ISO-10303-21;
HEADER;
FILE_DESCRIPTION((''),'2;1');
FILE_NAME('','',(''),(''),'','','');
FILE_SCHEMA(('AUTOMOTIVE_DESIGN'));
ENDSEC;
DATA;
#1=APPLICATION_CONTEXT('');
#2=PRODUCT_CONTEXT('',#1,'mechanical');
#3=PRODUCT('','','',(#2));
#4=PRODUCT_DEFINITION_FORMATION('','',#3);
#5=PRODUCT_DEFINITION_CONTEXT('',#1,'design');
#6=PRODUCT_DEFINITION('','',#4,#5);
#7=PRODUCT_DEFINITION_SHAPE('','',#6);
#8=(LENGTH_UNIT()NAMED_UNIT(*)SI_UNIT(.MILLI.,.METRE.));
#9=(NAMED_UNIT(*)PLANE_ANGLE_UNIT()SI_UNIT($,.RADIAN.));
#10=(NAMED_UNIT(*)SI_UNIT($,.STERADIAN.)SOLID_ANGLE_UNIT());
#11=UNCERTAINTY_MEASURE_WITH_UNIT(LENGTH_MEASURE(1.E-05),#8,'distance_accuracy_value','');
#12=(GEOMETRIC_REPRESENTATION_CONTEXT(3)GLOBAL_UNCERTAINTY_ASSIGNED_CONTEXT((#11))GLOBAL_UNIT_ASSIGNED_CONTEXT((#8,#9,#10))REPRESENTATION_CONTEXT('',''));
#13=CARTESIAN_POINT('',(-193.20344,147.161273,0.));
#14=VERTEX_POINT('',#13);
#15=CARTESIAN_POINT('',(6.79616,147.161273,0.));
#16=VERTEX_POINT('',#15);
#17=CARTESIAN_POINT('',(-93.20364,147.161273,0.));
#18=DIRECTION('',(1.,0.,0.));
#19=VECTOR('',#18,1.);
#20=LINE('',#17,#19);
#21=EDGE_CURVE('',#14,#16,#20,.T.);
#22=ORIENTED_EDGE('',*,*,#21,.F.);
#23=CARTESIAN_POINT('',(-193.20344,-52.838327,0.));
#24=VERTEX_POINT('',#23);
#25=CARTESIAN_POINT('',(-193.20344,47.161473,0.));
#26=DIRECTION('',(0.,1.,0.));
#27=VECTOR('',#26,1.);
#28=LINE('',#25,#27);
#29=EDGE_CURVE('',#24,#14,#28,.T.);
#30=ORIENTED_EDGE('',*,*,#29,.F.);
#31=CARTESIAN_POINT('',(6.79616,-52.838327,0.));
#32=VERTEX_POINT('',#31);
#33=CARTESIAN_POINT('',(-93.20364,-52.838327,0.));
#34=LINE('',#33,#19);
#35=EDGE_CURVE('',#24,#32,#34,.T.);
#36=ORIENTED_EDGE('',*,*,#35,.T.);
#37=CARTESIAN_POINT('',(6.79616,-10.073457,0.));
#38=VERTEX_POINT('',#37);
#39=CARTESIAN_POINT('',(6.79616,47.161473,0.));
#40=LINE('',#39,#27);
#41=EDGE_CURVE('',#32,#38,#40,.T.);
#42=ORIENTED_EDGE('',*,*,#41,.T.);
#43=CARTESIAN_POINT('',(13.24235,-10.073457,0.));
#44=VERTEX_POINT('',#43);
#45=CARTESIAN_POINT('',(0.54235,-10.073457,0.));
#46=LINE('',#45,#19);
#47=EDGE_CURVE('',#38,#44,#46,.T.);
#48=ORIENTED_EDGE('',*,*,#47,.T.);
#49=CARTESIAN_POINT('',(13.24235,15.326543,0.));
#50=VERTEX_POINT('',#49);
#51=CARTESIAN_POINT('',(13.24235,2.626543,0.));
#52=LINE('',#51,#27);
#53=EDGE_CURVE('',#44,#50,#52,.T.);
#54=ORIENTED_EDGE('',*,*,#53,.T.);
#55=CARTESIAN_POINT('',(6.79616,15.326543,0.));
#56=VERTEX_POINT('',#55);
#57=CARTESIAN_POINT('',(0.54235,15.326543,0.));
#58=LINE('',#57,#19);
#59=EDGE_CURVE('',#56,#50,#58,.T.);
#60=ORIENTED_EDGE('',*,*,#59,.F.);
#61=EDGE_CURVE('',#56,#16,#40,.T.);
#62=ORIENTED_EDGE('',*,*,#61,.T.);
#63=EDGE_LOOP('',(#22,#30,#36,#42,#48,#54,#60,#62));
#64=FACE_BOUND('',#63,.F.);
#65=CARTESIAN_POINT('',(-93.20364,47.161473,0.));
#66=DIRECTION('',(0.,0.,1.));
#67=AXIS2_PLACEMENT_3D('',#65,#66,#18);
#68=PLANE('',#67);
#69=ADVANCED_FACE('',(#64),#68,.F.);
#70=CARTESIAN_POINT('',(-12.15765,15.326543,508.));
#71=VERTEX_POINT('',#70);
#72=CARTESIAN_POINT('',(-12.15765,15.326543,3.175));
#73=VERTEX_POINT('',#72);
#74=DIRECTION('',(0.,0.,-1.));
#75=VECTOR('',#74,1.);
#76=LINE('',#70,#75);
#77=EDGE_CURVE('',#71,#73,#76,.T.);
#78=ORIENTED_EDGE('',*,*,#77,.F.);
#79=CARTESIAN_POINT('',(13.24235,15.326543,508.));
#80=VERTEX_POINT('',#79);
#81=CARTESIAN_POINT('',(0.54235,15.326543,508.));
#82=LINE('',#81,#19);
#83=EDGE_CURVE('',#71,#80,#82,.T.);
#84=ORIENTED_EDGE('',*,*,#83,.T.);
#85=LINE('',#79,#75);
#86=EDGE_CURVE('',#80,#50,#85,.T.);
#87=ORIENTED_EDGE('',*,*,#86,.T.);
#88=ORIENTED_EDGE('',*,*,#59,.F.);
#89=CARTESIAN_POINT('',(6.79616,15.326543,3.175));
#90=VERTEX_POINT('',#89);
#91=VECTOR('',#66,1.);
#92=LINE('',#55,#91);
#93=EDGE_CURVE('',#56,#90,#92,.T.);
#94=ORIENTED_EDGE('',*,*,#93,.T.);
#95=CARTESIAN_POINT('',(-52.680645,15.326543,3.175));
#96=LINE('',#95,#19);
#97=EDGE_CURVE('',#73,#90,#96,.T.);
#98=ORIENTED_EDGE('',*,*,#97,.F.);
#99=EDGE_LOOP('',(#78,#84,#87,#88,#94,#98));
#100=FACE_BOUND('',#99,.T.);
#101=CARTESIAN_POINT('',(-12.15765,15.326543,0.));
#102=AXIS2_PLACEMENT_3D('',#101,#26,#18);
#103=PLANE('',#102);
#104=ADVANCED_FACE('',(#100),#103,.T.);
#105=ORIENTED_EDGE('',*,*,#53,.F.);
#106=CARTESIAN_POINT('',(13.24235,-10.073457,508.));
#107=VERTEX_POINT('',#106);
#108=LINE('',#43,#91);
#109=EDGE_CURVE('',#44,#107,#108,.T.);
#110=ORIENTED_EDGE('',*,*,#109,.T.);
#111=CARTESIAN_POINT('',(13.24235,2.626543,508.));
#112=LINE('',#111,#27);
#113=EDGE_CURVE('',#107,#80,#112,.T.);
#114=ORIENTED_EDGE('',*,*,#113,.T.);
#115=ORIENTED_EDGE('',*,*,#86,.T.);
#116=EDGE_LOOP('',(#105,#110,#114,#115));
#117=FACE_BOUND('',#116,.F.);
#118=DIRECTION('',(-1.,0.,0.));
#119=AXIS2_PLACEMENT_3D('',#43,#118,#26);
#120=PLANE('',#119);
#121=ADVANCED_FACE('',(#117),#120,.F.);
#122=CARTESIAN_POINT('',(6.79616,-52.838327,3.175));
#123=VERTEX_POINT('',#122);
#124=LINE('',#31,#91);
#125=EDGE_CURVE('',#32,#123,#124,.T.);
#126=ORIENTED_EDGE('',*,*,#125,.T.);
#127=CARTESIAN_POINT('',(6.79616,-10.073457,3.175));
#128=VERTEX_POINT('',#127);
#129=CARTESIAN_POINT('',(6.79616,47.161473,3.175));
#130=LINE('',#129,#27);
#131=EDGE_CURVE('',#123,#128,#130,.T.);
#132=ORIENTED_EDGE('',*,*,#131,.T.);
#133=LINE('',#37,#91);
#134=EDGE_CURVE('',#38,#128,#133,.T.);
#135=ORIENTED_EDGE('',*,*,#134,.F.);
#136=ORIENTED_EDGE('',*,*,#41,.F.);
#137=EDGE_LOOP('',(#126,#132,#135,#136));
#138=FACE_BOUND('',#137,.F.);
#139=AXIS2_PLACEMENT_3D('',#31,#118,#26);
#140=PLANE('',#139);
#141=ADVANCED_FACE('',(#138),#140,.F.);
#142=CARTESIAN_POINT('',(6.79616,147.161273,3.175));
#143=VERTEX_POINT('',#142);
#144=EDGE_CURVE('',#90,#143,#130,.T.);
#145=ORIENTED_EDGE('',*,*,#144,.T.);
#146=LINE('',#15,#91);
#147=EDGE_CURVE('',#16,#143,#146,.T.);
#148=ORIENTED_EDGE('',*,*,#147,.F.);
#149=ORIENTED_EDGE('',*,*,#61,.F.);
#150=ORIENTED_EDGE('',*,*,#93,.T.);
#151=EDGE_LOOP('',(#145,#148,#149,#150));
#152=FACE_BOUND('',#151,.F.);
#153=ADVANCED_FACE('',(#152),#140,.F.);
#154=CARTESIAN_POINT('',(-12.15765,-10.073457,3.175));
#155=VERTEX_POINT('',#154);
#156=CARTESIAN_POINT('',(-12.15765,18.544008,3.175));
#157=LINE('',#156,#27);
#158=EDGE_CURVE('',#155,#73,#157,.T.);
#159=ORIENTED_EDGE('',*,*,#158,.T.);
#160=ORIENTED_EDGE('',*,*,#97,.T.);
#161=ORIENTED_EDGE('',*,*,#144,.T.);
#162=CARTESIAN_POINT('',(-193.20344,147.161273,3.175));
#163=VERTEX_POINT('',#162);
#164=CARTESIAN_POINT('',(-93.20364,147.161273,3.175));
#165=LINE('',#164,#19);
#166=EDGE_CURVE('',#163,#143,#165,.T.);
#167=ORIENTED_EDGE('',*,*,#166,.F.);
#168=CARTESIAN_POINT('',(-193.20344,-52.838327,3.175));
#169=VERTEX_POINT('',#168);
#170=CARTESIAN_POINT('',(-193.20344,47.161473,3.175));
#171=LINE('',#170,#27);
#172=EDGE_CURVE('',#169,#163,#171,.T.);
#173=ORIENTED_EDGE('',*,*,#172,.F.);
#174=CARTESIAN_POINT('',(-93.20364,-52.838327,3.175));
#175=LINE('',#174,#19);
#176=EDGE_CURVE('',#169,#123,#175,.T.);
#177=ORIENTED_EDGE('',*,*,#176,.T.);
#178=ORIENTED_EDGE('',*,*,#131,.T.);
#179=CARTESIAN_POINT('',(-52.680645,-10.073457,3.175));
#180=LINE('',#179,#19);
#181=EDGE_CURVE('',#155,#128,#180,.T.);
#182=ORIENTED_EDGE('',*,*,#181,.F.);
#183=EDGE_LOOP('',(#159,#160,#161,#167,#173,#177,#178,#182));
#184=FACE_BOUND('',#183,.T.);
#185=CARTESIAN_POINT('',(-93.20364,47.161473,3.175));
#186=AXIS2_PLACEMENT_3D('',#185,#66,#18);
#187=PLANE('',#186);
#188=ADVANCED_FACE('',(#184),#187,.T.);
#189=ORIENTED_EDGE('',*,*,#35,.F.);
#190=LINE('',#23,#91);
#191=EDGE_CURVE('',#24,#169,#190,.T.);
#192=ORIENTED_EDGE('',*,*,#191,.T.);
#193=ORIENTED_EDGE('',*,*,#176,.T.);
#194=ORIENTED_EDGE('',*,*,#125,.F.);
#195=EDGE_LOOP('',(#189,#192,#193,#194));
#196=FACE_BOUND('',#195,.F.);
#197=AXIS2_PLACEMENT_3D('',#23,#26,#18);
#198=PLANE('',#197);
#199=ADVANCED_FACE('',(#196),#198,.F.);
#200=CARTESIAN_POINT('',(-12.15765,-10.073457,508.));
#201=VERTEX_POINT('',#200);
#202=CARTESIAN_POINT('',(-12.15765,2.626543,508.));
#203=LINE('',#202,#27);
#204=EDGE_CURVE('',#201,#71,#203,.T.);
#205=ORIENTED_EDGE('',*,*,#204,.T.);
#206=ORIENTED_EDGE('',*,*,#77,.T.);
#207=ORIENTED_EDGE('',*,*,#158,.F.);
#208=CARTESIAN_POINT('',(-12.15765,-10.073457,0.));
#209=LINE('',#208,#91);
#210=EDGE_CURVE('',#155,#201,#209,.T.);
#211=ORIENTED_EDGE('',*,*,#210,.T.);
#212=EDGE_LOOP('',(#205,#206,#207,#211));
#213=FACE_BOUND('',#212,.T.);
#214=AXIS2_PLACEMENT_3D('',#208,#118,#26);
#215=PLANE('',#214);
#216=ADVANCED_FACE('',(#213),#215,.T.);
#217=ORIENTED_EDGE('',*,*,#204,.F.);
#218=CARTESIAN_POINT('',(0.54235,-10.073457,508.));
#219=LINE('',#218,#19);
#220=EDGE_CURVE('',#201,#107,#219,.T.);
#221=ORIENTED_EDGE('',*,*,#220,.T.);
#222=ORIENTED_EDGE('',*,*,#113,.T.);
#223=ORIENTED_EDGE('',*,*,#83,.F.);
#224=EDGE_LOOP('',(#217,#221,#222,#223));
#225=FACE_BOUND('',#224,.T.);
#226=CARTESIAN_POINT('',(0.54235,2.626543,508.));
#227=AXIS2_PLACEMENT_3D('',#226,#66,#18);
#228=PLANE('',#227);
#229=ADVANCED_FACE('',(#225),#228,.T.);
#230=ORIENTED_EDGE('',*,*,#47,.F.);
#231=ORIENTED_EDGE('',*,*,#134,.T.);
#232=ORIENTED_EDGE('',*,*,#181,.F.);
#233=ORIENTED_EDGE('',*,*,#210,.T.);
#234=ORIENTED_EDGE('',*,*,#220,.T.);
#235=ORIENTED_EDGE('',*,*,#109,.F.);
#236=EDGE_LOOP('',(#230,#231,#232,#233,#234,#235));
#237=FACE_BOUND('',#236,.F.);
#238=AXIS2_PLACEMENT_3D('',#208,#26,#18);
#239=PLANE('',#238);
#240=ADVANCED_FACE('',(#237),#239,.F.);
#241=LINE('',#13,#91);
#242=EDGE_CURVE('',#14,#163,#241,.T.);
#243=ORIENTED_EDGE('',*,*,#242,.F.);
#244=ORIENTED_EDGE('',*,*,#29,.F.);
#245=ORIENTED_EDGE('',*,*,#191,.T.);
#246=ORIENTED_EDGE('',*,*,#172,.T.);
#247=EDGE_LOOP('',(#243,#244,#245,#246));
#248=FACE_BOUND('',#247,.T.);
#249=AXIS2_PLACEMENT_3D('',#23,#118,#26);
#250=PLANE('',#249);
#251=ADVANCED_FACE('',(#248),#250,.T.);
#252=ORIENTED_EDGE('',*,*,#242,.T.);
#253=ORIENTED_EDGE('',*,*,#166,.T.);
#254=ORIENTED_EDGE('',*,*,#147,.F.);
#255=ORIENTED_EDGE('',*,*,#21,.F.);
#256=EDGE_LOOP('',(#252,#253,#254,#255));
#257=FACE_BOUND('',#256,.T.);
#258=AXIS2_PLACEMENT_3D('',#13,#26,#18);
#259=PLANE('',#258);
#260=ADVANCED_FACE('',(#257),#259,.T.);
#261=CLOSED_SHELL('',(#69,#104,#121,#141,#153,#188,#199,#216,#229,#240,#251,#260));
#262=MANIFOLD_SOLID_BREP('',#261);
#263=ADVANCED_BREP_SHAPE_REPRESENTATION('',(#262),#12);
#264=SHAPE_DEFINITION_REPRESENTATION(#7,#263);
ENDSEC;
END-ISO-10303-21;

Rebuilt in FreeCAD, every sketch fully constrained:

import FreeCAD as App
import Part
import Sketcher
from FreeCAD import Vector
Q = App.Units.Quantity

doc = App.newDocument("Part")
params = doc.addObject("Spreadsheet::Sheet", "Params")
for row, (alias, value) in enumerate([
    ("sketch1_width", "1 in"),
    ("pad1_length", "20 in"),
    ("sketch2_width", "1 in"),
    ("pad2_length", "14 in"),
    ("sketch3_width", "7.874 in"),
    ("pad3_length", "0.125 in"),
], start=1):
    params.set(f"A{row}", alias)
    params.set(f"B{row}", "=" + value)
    params.setAlias(f"B{row}", alias)

body = doc.addObject("PartDesign::Body", "Body")

sketch1 = body.newObject("Sketcher::SketchObject", "Sketch")
sketch1.AttachmentSupport = (doc.getObject("XY_Plane"), [""])
sketch1.MapMode = "FlatFace"
sketch1.addGeometry([
    Part.LineSegment(Vector(-12, 15, 0), Vector(-12, -10, 0)),
    Part.LineSegment(Vector(-12, -10, 0), Vector(13, -10, 0)),
    Part.LineSegment(Vector(13, -10, 0), Vector(13, 15, 0)),
    Part.LineSegment(Vector(13, 15, 0), Vector(-12, 15, 0)),
], False)
sketch1.addConstraint([
    Sketcher.Constraint("Coincident", 0, 2, 1, 1),
    Sketcher.Constraint("Coincident", 1, 2, 2, 1),
    Sketcher.Constraint("Coincident", 2, 2, 3, 1),
    Sketcher.Constraint("Coincident", 3, 2, 0, 1),
    Sketcher.Constraint("Vertical", 0),
    Sketcher.Constraint("Horizontal", 1),
    Sketcher.Constraint("Vertical", 2),
    Sketcher.Constraint("Horizontal", 3),
    Sketcher.Constraint("Equal", 3, 0),
    Sketcher.Constraint("DistanceX", 1, 1, 1, 2, Q("1 in")),
    Sketcher.Constraint("DistanceX", 0, 2, -1, 1, Q("12.15765 mm")),
    Sketcher.Constraint("DistanceY", 0, 2, -1, 1, Q("10.073457 mm")),
])
sketch1.setExpression("Constraints[9]", "Params.sketch1_width")
pad1 = body.newObject("PartDesign::Pad", "Pad")
pad1.Profile = sketch1
pad1.setExpression("Length", "Params.pad1_length")

sketch2 = body.newObject("Sketcher::SketchObject", "Sketch001")
sketch2.AttachmentSupport = (doc.getObject("XY_Plane"), [""])
sketch2.MapMode = "FlatFace"
sketch2.addGeometry([
    Part.LineSegment(Vector(-12, 15, 0), Vector(-12, -10, 0)),
    Part.LineSegment(Vector(-12, -10, 0), Vector(13, -10, 0)),
    Part.LineSegment(Vector(13, -10, 0), Vector(13, 15, 0)),
    Part.LineSegment(Vector(13, 15, 0), Vector(-12, 15, 0)),
], False)
sketch2.addConstraint([
    Sketcher.Constraint("Coincident", 0, 2, 1, 1),
    Sketcher.Constraint("Coincident", 1, 2, 2, 1),
    Sketcher.Constraint("Coincident", 2, 2, 3, 1),
    Sketcher.Constraint("Coincident", 3, 2, 0, 1),
    Sketcher.Constraint("Vertical", 0),
    Sketcher.Constraint("Horizontal", 1),
    Sketcher.Constraint("Vertical", 2),
    Sketcher.Constraint("Horizontal", 3),
    Sketcher.Constraint("Equal", 3, 0),
    Sketcher.Constraint("DistanceX", 1, 1, 1, 2, Q("1 in")),
    Sketcher.Constraint("DistanceX", 0, 2, -1, 1, Q("12.15765 mm")),
    Sketcher.Constraint("DistanceY", 0, 2, -1, 1, Q("10.073457 mm")),
])
sketch2.setExpression("Constraints[9]", "Params.sketch2_width")
pad2 = body.newObject("PartDesign::Pad", "Pad001")
pad2.Profile = sketch2
pad2.setExpression("Length", "Params.pad2_length")

sketch3 = body.newObject("Sketcher::SketchObject", "Sketch002")
sketch3.AttachmentSupport = (doc.getObject("XY_Plane"), [""])
sketch3.MapMode = "FlatFace"
sketch3.addGeometry([
    Part.LineSegment(Vector(-193, 147, 0), Vector(-193, -53, 0)),
    Part.LineSegment(Vector(-193, -53, 0), Vector(7, -53, 0)),
    Part.LineSegment(Vector(7, -53, 0), Vector(7, 147, 0)),
    Part.LineSegment(Vector(7, 147, 0), Vector(-193, 147, 0)),
], False)
sketch3.addConstraint([
    Sketcher.Constraint("Coincident", 0, 2, 1, 1),
    Sketcher.Constraint("Coincident", 1, 2, 2, 1),
    Sketcher.Constraint("Coincident", 2, 2, 3, 1),
    Sketcher.Constraint("Coincident", 3, 2, 0, 1),
    Sketcher.Constraint("Vertical", 0),
    Sketcher.Constraint("Horizontal", 1),
    Sketcher.Constraint("Vertical", 2),
    Sketcher.Constraint("Horizontal", 3),
    Sketcher.Constraint("Equal", 3, 0),
    Sketcher.Constraint("DistanceX", 1, 1, 1, 2, Q("7.874 in")),
    Sketcher.Constraint("DistanceX", 0, 2, -1, 1, Q("193.20344 mm")),
    Sketcher.Constraint("DistanceY", 0, 2, -1, 1, Q("52.838327 mm")),
])
sketch3.setExpression("Constraints[9]", "Params.sketch3_width")
pad3 = body.newObject("PartDesign::Pad", "Pad002")
pad3.Profile = sketch3
pad3.setExpression("Length", "Params.pad3_length")

doc.recompute()
